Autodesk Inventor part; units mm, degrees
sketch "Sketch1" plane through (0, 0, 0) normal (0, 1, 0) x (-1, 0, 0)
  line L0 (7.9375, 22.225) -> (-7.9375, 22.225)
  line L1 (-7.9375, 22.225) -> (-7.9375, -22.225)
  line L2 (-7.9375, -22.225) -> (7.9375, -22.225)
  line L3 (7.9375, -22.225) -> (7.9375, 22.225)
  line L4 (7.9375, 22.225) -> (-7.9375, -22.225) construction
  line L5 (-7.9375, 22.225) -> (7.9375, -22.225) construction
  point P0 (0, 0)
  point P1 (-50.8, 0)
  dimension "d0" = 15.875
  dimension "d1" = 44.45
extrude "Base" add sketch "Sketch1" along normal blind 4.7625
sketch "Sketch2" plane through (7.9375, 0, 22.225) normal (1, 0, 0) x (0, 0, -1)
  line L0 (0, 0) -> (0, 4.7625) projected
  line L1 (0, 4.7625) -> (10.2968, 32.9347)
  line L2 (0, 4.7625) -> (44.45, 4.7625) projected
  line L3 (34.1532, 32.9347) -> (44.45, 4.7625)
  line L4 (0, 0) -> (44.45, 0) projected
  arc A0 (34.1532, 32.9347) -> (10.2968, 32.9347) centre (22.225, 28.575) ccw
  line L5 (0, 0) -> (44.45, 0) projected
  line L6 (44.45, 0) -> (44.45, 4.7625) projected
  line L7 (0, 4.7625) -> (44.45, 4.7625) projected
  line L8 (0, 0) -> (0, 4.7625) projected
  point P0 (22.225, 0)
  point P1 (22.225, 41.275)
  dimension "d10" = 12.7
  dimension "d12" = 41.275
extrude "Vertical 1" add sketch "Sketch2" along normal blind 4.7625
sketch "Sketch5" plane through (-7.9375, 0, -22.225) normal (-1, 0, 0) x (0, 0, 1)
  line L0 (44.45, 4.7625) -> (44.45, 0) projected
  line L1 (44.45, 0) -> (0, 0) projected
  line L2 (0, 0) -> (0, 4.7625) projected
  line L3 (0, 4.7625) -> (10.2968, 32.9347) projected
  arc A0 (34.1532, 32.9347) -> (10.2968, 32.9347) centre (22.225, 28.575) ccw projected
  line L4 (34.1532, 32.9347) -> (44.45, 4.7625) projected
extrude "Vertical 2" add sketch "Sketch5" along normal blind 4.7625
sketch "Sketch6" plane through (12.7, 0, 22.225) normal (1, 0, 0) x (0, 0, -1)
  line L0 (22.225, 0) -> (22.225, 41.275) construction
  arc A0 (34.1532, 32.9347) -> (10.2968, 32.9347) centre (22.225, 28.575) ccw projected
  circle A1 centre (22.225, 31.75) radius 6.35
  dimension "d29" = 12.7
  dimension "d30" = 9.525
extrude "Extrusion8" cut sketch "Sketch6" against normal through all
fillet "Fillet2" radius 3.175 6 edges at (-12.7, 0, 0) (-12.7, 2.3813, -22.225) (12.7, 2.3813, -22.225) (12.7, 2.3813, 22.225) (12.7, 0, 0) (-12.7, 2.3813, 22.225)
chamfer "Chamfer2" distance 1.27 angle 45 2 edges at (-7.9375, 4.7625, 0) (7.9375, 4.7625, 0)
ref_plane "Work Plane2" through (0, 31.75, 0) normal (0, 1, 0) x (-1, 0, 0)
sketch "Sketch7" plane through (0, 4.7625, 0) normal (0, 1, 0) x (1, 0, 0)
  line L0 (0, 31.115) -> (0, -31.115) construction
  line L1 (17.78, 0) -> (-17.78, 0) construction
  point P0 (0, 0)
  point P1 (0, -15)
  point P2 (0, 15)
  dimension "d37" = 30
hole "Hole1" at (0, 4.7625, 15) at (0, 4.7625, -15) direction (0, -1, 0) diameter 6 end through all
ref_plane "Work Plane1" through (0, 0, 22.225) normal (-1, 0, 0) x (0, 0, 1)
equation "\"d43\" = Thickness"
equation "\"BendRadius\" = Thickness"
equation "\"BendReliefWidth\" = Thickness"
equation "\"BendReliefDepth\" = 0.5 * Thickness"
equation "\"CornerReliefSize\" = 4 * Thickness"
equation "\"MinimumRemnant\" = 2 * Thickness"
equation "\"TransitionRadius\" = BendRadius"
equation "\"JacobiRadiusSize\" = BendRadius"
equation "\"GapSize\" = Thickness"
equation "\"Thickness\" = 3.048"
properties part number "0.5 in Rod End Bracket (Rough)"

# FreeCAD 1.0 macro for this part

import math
import FreeCAD as App
import Part
import Sketcher
from FreeCAD import Vector
Q = App.Units.Quantity


def edges_at(feature, points):
    """Names of the edges that pass closest to the given points."""
    edges = feature.Shape.Edges
    near = lambda p: min(range(len(edges)), key=lambda i: edges[i].distToShape(Part.Vertex(*p))[0])
    return sorted({f"Edge{near(p) + 1}" for p in points})

doc = App.newDocument("Part")
body = doc.addObject("PartDesign::Body", "Body")

# Sketch on XZ plane
sketch1 = doc.addObject("Sketcher::SketchObject", "Sketch")
body.addObject(sketch1)
sketch1.AttachmentSupport = (doc.XZ_Plane, [""])
sketch1.MapMode = "FlatFace"
sketch1.addGeometry([
    Part.LineSegment(Vector(-8, -22, 0), Vector(-8, 22, 0)),
    Part.LineSegment(Vector(-8, 22, 0), Vector(8, 22, 0)),
    Part.LineSegment(Vector(8, 22, 0), Vector(8, -22, 0)),
    Part.LineSegment(Vector(8, -22, 0), Vector(-8, -22, 0)),
], False)
sketch1.addConstraint([
    Sketcher.Constraint("Coincident", 0, 2, 1, 1),
    Sketcher.Constraint("Coincident", 1, 2, 2, 1),
    Sketcher.Constraint("Coincident", 2, 2, 3, 1),
    Sketcher.Constraint("Coincident", 3, 2, 0, 1),
    Sketcher.Constraint("Vertical", 0),
    Sketcher.Constraint("Horizontal", 1),
    Sketcher.Constraint("Vertical", 2),
    Sketcher.Constraint("Horizontal", 3),
    Sketcher.Constraint("Symmetric", 0, 2, 2, 2, -1, 1),
    Sketcher.Constraint("DistanceY", 0, 1, 0, 2, Q("1.75 in")),
    Sketcher.Constraint("DistanceX", 1, 1, 1, 2, Q("0.625 in")),
])
pad1 = doc.addObject("PartDesign::Pad", "Pad")
body.addObject(pad1)
pad1.Profile = sketch1
pad1.Length = Q("0.1875 in")
pad1.Reversed = True

# Sketch on YZ plane
sketch2 = doc.addObject("Sketcher::SketchObject", "Sketch001")
body.addObject(sketch2)
sketch2.AttachmentSupport = (doc.YZ_Plane, [""])
sketch2.MapMode = "FlatFace"
sketch2.AttachmentOffset = App.Placement(Vector(0, 0, 0.3125 * 25.4), App.Rotation())
sketch2.addGeometry([
    Part.LineSegment(Vector(4.8, 22.2, 0), Vector(0, 22.2, 0)),  # 0
    Part.LineSegment(Vector(0, 22.2, 0), Vector(0, -22.2, 0)),  # 1
    Part.LineSegment(Vector(0, -22.2, 0), Vector(4.8, -22.2, 0)),  # 2
    Part.LineSegment(Vector(4.8, -22.2, 0), Vector(32.9, -11.9, 0)),  # 3
    Part.ArcOfCircle(Part.Circle(Vector(28.6, 0, 0), Vector(0, 0, 1), 12.7), math.radians(-70), math.radians(70)),  # 4
    Part.LineSegment(Vector(32.9, 11.9, 0), Vector(4.8, 22.2, 0)),  # 5
], False)
sketch2.addConstraint([
    Sketcher.Constraint("Coincident", 0, 2, 1, 1),
    Sketcher.Constraint("Coincident", 1, 2, 2, 1),
    Sketcher.Constraint("Coincident", 2, 2, 3, 1),
    Sketcher.Constraint("Tangent", 3, 2, 4, 1),
    Sketcher.Constraint("Tangent", 4, 2, 5, 1),
    Sketcher.Constraint("Coincident", 5, 2, 0, 1),
    Sketcher.Constraint("Horizontal", 0),
    Sketcher.Constraint("Vertical", 1),
    Sketcher.Constraint("Horizontal", 2),
    Sketcher.Constraint("Symmetric", 0, 2, 1, 2, -1, 1),
    Sketcher.Constraint("Symmetric", 3, 2, 4, 2, -1),
    Sketcher.Constraint("Radius", 4, Q("0.5 in")),
    Sketcher.Constraint("DistanceY", 1, 2, 1, 1, Q("1.75 in")),
    Sketcher.Constraint("DistanceX", 0, 2, 0, 1, Q("0.1875 in")),
    Sketcher.Constraint("DistanceX", -1, 1, 4, 3, Q("1.125 in")),
])
pad2 = doc.addObject("PartDesign::Pad", "Pad001")
body.addObject(pad2)
pad2.Profile = sketch2
pad2.Length = Q("0.1875 in")

# Sketch on YZ plane
sketch3 = doc.addObject("Sketcher::SketchObject", "Sketch002")
body.addObject(sketch3)
sketch3.AttachmentSupport = (doc.YZ_Plane, [""])
sketch3.MapMode = "FlatFace"
sketch3.AttachmentOffset = App.Placement(Vector(0, 0, -0.3125 * 25.4), App.Rotation())
sketch3.addGeometry([
    Part.LineSegment(Vector(0, 22.2, 0), Vector(4.8, 22.2, 0)),  # 0
    Part.LineSegment(Vector(4.8, 22.2, 0), Vector(32.9, 11.9, 0)),  # 1
    Part.ArcOfCircle(Part.Circle(Vector(28.6, 0, 0), Vector(0, 0, 1), 12.7), math.radians(-70), math.radians(70)),  # 2
    Part.LineSegment(Vector(32.9, -11.9, 0), Vector(4.8, -22.2, 0)),  # 3
    Part.LineSegment(Vector(4.8, -22.2, 0), Vector(0, -22.2, 0)),  # 4
    Part.LineSegment(Vector(0, -22.2, 0), Vector(0, 22.2, 0)),  # 5
], False)
sketch3.addConstraint([
    Sketcher.Constraint("Coincident", 0, 2, 1, 1),
    Sketcher.Constraint("Tangent", 1, 2, 2, 2),
    Sketcher.Constraint("Tangent", 2, 1, 3, 1),
    Sketcher.Constraint("Coincident", 3, 2, 4, 1),
    Sketcher.Constraint("Coincident", 4, 2, 5, 1),
    Sketcher.Constraint("Coincident", 5, 2, 0, 1),
    Sketcher.Constraint("Horizontal", 0),
    Sketcher.Constraint("Horizontal", 4),
    Sketcher.Constraint("Vertical", 5),
    Sketcher.Constraint("Symmetric", 4, 2, 5, 2, -1, 1),
    Sketcher.Constraint("Symmetric", 1, 2, 2, 1, -1),
    Sketcher.Constraint("Radius", 2, Q("0.5 in")),
    Sketcher.Constraint("DistanceY", 5, 1, 5, 2, Q("1.75 in")),
    Sketcher.Constraint("DistanceX", 0, 1, 0, 2, Q("0.1875 in")),
    Sketcher.Constraint("DistanceX", -1, 1, 2, 3, Q("1.125 in")),
])
pad3 = doc.addObject("PartDesign::Pad", "Pad002")
body.addObject(pad3)
pad3.Profile = sketch3
pad3.Length = Q("0.1875 in")
pad3.Reversed = True

# Sketch on YZ plane
sketch4 = doc.addObject("Sketcher::SketchObject", "Sketch003")
body.addObject(sketch4)
sketch4.AttachmentSupport = (doc.YZ_Plane, [""])
sketch4.MapMode = "FlatFace"
sketch4.AttachmentOffset = App.Placement(Vector(0, 0, 0.5 * 25.4), App.Rotation())
sketch4.addGeometry(Part.Circle(Vector(32, 0, 0), Vector(0, 0, 1), 6), False)
sketch4.addConstraint([
    Sketcher.Constraint("PointOnObject", 0, 3, -1),
    Sketcher.Constraint("Diameter", 0, Q("0.5 in")),
    Sketcher.Constraint("DistanceX", -1, 1, 0, 3, Q("1.25 in")),
])
pocket1 = doc.addObject("PartDesign::Pocket", "Pocket")
body.addObject(pocket1)
pocket1.Profile = sketch4
pocket1.Type = "ThroughAll"
doc.recompute()

fillet = doc.addObject("PartDesign::Fillet", "Fillet")
body.addObject(fillet)
fillet.Base = (pocket1, edges_at(pocket1, [
    (-12.7, 0, 0),
    (-12.7, 2.381, -22.225),
    (12.7, 2.381, -22.225),
    (12.7, 2.381, 22.225),
    (12.7, 0, 0),
    (-12.7, 2.381, 22.225),
]))
fillet.Radius = Q("0.125 in")
doc.recompute()

chamfer = doc.addObject("PartDesign::Chamfer", "Chamfer")
body.addObject(chamfer)
chamfer.Base = (fillet, edges_at(fillet, [(-7.938, 4.763, 0), (7.938, 4.763, 0)]))
chamfer.Size = Q("0.05 in")

# Sketch on XZ plane
sketch5 = doc.addObject("Sketcher::SketchObject", "Sketch004")
body.addObject(sketch5)
sketch5.AttachmentSupport = (doc.XZ_Plane, [""])
sketch5.MapMode = "FlatFace"
sketch5.AttachmentOffset = App.Placement(Vector(0, 0, -0.1875 * 25.4), App.Rotation())
sketch5.addGeometry([
    Part.Circle(Vector(0, 15, 0), Vector(0, 0, 1), 3),
    Part.Circle(Vector(0, -15, 0), Vector(0, 0, 1), 3),
], False)
sketch5.addConstraint([
    Sketcher.Constraint("Equal", 0, 1),
    Sketcher.Constraint("Symmetric", 0, 3, 1, 3, -1, 1),
    Sketcher.Constraint("PointOnObject", 0, 3, -2),
    Sketcher.Constraint("Diameter", 0, 6.0),
    Sketcher.Constraint("DistanceY", 1, 3, 0, 3, Q("1.1811 in")),
])
doc.recompute()
hole = doc.addObject("PartDesign::Hole", "Hole")
body.addObject(hole)
hole.Profile = sketch5
hole.ThreadType = "None"
hole.Diameter = 6
hole.DepthType = "ThroughAll"
hole.Reversed = True

doc.recompute()
